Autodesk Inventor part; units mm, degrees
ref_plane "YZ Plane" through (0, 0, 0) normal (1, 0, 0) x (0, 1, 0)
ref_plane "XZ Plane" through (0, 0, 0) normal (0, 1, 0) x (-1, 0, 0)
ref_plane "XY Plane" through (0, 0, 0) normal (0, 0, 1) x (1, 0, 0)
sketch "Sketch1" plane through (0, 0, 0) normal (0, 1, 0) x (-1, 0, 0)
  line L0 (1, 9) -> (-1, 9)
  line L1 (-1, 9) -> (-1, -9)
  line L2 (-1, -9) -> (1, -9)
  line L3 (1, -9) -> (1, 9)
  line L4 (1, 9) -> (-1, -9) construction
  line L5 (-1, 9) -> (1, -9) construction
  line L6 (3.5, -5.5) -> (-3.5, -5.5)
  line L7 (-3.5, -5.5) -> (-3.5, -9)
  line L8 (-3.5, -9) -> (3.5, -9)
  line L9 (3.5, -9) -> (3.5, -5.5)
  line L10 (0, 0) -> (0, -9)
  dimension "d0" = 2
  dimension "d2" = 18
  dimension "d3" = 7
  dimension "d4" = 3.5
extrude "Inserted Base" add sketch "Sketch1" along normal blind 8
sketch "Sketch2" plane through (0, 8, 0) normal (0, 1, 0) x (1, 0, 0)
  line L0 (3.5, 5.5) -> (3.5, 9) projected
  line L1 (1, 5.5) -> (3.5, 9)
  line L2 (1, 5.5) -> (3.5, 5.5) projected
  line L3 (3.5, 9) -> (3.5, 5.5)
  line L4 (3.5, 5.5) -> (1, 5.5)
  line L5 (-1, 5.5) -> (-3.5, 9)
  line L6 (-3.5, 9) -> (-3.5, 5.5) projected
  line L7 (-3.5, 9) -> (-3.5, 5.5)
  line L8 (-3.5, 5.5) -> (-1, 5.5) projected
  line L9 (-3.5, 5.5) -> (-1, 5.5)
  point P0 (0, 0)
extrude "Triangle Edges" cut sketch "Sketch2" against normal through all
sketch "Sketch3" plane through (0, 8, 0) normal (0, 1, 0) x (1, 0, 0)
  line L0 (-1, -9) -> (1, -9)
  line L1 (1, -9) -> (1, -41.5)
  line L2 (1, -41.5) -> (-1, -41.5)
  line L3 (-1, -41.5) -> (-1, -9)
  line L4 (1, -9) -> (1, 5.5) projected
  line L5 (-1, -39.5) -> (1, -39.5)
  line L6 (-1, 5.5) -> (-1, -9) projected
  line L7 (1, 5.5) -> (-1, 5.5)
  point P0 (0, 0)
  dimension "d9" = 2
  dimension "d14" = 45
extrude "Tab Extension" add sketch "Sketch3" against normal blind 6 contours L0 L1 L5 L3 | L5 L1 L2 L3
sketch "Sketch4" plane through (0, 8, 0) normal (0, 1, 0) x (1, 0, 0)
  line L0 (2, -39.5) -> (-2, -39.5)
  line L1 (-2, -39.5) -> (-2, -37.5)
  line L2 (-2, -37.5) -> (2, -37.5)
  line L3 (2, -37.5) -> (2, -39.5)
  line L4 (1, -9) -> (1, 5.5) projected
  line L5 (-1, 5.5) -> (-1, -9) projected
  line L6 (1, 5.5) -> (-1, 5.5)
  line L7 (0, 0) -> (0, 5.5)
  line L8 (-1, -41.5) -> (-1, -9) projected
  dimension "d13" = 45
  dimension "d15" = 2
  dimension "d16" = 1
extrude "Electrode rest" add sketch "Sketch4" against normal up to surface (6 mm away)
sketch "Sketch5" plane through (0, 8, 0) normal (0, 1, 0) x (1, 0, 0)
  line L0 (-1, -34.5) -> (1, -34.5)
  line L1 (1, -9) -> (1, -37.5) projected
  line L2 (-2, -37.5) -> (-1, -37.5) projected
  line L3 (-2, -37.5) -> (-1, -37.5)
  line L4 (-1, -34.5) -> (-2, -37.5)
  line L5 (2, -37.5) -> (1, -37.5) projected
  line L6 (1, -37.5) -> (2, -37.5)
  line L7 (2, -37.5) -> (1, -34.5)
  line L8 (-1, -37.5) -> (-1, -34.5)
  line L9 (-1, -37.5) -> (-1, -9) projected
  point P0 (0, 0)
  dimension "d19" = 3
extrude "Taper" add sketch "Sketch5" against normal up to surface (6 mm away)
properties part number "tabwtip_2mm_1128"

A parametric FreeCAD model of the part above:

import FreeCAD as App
import Part
import Sketcher

doc = App.newDocument("Part")
body = doc.addObject("PartDesign::Body", "Body")

sketch1 = body.newObject("Sketcher::SketchObject", "Sketch")
sketch1.AttachmentSupport = (doc.getObject("XZ_Plane"), [""])
sketch1.MapMode = "FlatFace"
sketch1.addGeometry([
    Part.LineSegment(App.Vector(-1, -5.5, 0), App.Vector(-1, 9, 0)),
    Part.LineSegment(App.Vector(-1, 9, 0), App.Vector(1, 9, 0)),
    Part.LineSegment(App.Vector(1, 9, 0), App.Vector(1, -5.5, 0)),
    Part.LineSegment(App.Vector(1, -5.5, 0), App.Vector(3.5, -5.5, 0)),
    Part.LineSegment(App.Vector(3.5, -5.5, 0), App.Vector(3.5, -9, 0)),
    Part.LineSegment(App.Vector(3.5, -9, 0), App.Vector(-3.5, -9, 0)),
    Part.LineSegment(App.Vector(-3.5, -9, 0), App.Vector(-3.5, -5.5, 0)),
    Part.LineSegment(App.Vector(-3.5, -5.5, 0), App.Vector(-1, -5.5, 0)),
], False)
sketch1.addConstraint([
    Sketcher.Constraint("Coincident", 0, 2, 1, 1),
    Sketcher.Constraint("Coincident", 1, 2, 2, 1),
    Sketcher.Constraint("Coincident", 2, 2, 3, 1),
    Sketcher.Constraint("Coincident", 3, 2, 4, 1),
    Sketcher.Constraint("Coincident", 4, 2, 5, 1),
    Sketcher.Constraint("Coincident", 5, 2, 6, 1),
    Sketcher.Constraint("Coincident", 6, 2, 7, 1),
    Sketcher.Constraint("Coincident", 7, 2, 0, 1),
    Sketcher.Constraint("Vertical", 0),
    Sketcher.Constraint("Horizontal", 1),
    Sketcher.Constraint("Vertical", 2),
    Sketcher.Constraint("Horizontal", 3),
    Sketcher.Constraint("Vertical", 4),
    Sketcher.Constraint("Horizontal", 5),
    Sketcher.Constraint("Vertical", 6),
    Sketcher.Constraint("Horizontal", 7),
    Sketcher.Constraint("Symmetric", 3, 2, 6, 2, -2),
    Sketcher.Constraint("Equal", 3, 7),
    Sketcher.Constraint("DistanceX", 1, 1, 1, 2, 2.0),
    Sketcher.Constraint("DistanceX", 5, 2, 5, 1, 7.0),
    Sketcher.Constraint("DistanceY", 4, 2, 4, 1, 3.5),
    Sketcher.Constraint("DistanceY", 4, 2, 1, 2, 18.0),
    Sketcher.Constraint("DistanceY", -1, 1, 0, 2, 9.0),
])
pad1 = body.newObject("PartDesign::Pad", "Pad")
pad1.Profile = sketch1
pad1.Length = 8
pad1.Reversed = True

sketch2 = body.newObject("Sketcher::SketchObject", "Sketch001")
sketch2.AttachmentSupport = (doc.getObject("XZ_Plane"), [""])
sketch2.MapMode = "FlatFace"
sketch2.AttachmentOffset = App.Placement(App.Vector(0, 0, -8), App.Rotation())
sketch2.addGeometry([
    Part.LineSegment(App.Vector(1, -5.5, 0), App.Vector(3.5, -5.5, 0)),
    Part.LineSegment(App.Vector(3.5, -5.5, 0), App.Vector(3.5, -9, 0)),
    Part.LineSegment(App.Vector(3.5, -9, 0), App.Vector(1, -5.5, 0)),
    Part.LineSegment(App.Vector(-3.5, -5.5, 0), App.Vector(-1, -5.5, 0)),
    Part.LineSegment(App.Vector(-1, -5.5, 0), App.Vector(-3.5, -9, 0)),
    Part.LineSegment(App.Vector(-3.5, -9, 0), App.Vector(-3.5, -5.5, 0)),
], False)
sketch2.addConstraint([
    Sketcher.Constraint("Coincident", 0, 2, 1, 1),
    Sketcher.Constraint("Coincident", 1, 2, 2, 1),
    Sketcher.Constraint("Coincident", 2, 2, 0, 1),
    Sketcher.Constraint("Coincident", 3, 2, 4, 1),
    Sketcher.Constraint("Coincident", 4, 2, 5, 1),
    Sketcher.Constraint("Coincident", 5, 2, 3, 1),
    Sketcher.Constraint("Horizontal", 0),
    Sketcher.Constraint("Vertical", 1),
    Sketcher.Constraint("Horizontal", 3),
    Sketcher.Constraint("Vertical", 5),
    Sketcher.Constraint("Symmetric", 2, 2, 3, 2, -2),
    Sketcher.Constraint("Symmetric", 1, 2, 4, 2, -2),
    Sketcher.Constraint("DistanceX", 0, 1, 0, 2, 2.5),
    Sketcher.Constraint("DistanceY", 1, 2, 1, 1, 3.5),
    Sketcher.Constraint("DistanceY", 1, 2, -1, 1, 9.0),
    Sketcher.Constraint("DistanceX", -1, 1, 2, 2, 1.0),
])
pocket1 = body.newObject("PartDesign::Pocket", "Pocket")
pocket1.Profile = sketch2
pocket1.Type = "ThroughAll"
pocket1.Reversed = True

sketch3 = body.newObject("Sketcher::SketchObject", "Sketch002")
sketch3.AttachmentSupport = (doc.getObject("XZ_Plane"), [""])
sketch3.MapMode = "FlatFace"
sketch3.AttachmentOffset = App.Placement(App.Vector(0, 0, -8), App.Rotation())
sketch3.addGeometry([
    Part.LineSegment(App.Vector(1, 9, 0), App.Vector(-1, 9, 0)),
    Part.LineSegment(App.Vector(-1, 9, 0), App.Vector(-1, 41.5, 0)),
    Part.LineSegment(App.Vector(-1, 41.5, 0), App.Vector(1, 41.5, 0)),
    Part.LineSegment(App.Vector(1, 41.5, 0), App.Vector(1, 9, 0)),
], False)
sketch3.addConstraint([
    Sketcher.Constraint("Coincident", 0, 2, 1, 1),
    Sketcher.Constraint("Coincident", 1, 2, 2, 1),
    Sketcher.Constraint("Coincident", 2, 2, 3, 1),
    Sketcher.Constraint("Coincident", 3, 2, 0, 1),
    Sketcher.Constraint("Horizontal", 0),
    Sketcher.Constraint("Vertical", 1),
    Sketcher.Constraint("Horizontal", 2),
    Sketcher.Constraint("Vertical", 3),
    Sketcher.Constraint("DistanceX", 0, 2, 0, 1, 2.0),
    Sketcher.Constraint("DistanceY", 1, 1, 1, 2, 32.5),
    Sketcher.Constraint("DistanceX", 0, 2, -1, 1, 1.0),
    Sketcher.Constraint("DistanceY", -1, 1, 0, 2, 9.0),
])
pad2 = body.newObject("PartDesign::Pad", "Pad001")
pad2.Profile = sketch3
pad2.Length = 6

sketch4 = body.newObject("Sketcher::SketchObject", "Sketch003")
sketch4.AttachmentSupport = (doc.getObject("XZ_Plane"), [""])
sketch4.MapMode = "FlatFace"
sketch4.AttachmentOffset = App.Placement(App.Vector(0, 0, -8), App.Rotation())
sketch4.addGeometry([
    Part.LineSegment(App.Vector(2, 39.5, 0), App.Vector(2, 37.5, 0)),
    Part.LineSegment(App.Vector(2, 37.5, 0), App.Vector(-2, 37.5, 0)),
    Part.LineSegment(App.Vector(-2, 37.5, 0), App.Vector(-2, 39.5, 0)),
    Part.LineSegment(App.Vector(-2, 39.5, 0), App.Vector(2, 39.5, 0)),
], False)
sketch4.addConstraint([
    Sketcher.Constraint("Coincident", 0, 2, 1, 1),
    Sketcher.Constraint("Coincident", 1, 2, 2, 1),
    Sketcher.Constraint("Coincident", 2, 2, 3, 1),
    Sketcher.Constraint("Coincident", 3, 2, 0, 1),
    Sketcher.Constraint("Vertical", 0),
    Sketcher.Constraint("Horizontal", 1),
    Sketcher.Constraint("Vertical", 2),
    Sketcher.Constraint("Horizontal", 3),
    Sketcher.Constraint("DistanceY", 0, 2, 0, 1, 2.0),
    Sketcher.Constraint("DistanceX", -1, 1, 0, 2, 2.0),
    Sketcher.Constraint("DistanceX", 1, 2, -1, 1, 2.0),
    Sketcher.Constraint("DistanceY", -1, 1, 0, 2, 37.5),
])
pad3 = body.newObject("PartDesign::Pad", "Pad002")
pad3.Profile = sketch4
pad3.Length = 6

sketch5 = body.newObject("Sketcher::SketchObject", "Sketch004")
sketch5.AttachmentSupport = (doc.getObject("XZ_Plane"), [""])
sketch5.MapMode = "FlatFace"
sketch5.AttachmentOffset = App.Placement(App.Vector(0, 0, -8), App.Rotation())
sketch5.addGeometry([
    Part.LineSegment(App.Vector(2, 37.5, 0), App.Vector(1, 34.5, 0)),
    Part.LineSegment(App.Vector(1, 34.5, 0), App.Vector(1, 37.5, 0)),
    Part.LineSegment(App.Vector(1, 37.5, 0), App.Vector(2, 37.5, 0)),
    Part.LineSegment(App.Vector(-1, 37.5, 0), App.Vector(-1, 34.5, 0)),
    Part.LineSegment(App.Vector(-1, 34.5, 0), App.Vector(-2, 37.5, 0)),
    Part.LineSegment(App.Vector(-2, 37.5, 0), App.Vector(-1, 37.5, 0)),
], False)
sketch5.addConstraint([
    Sketcher.Constraint("Coincident", 0, 2, 1, 1),
    Sketcher.Constraint("Coincident", 1, 2, 2, 1),
    Sketcher.Constraint("Coincident", 2, 2, 0, 1),
    Sketcher.Constraint("Coincident", 3, 2, 4, 1),
    Sketcher.Constraint("Coincident", 4, 2, 5, 1),
    Sketcher.Constraint("Coincident", 5, 2, 3, 1),
    Sketcher.Constraint("Vertical", 1),
    Sketcher.Constraint("Horizontal", 2),
    Sketcher.Constraint("Vertical", 3),
    Sketcher.Constraint("Horizontal", 5),
    Sketcher.Constraint("Symmetric", 0, 2, 3, 2, -2),
    Sketcher.Constraint("Symmetric", 2, 2, 4, 2, -2),
    Sketcher.Constraint("DistanceY", 1, 1, 1, 2, 3.0),
    Sketcher.Constraint("DistanceX", 3, 2, 2, 2, 3.0),
    Sketcher.Constraint("DistanceX", 2, 1, 2, 2, 1.0),
    Sketcher.Constraint("DistanceY", -1, 1, 0, 2, 34.5),
])
pad4 = body.newObject("PartDesign::Pad", "Pad003")
pad4.Profile = sketch5
pad4.Length = 6

doc.recompute()
